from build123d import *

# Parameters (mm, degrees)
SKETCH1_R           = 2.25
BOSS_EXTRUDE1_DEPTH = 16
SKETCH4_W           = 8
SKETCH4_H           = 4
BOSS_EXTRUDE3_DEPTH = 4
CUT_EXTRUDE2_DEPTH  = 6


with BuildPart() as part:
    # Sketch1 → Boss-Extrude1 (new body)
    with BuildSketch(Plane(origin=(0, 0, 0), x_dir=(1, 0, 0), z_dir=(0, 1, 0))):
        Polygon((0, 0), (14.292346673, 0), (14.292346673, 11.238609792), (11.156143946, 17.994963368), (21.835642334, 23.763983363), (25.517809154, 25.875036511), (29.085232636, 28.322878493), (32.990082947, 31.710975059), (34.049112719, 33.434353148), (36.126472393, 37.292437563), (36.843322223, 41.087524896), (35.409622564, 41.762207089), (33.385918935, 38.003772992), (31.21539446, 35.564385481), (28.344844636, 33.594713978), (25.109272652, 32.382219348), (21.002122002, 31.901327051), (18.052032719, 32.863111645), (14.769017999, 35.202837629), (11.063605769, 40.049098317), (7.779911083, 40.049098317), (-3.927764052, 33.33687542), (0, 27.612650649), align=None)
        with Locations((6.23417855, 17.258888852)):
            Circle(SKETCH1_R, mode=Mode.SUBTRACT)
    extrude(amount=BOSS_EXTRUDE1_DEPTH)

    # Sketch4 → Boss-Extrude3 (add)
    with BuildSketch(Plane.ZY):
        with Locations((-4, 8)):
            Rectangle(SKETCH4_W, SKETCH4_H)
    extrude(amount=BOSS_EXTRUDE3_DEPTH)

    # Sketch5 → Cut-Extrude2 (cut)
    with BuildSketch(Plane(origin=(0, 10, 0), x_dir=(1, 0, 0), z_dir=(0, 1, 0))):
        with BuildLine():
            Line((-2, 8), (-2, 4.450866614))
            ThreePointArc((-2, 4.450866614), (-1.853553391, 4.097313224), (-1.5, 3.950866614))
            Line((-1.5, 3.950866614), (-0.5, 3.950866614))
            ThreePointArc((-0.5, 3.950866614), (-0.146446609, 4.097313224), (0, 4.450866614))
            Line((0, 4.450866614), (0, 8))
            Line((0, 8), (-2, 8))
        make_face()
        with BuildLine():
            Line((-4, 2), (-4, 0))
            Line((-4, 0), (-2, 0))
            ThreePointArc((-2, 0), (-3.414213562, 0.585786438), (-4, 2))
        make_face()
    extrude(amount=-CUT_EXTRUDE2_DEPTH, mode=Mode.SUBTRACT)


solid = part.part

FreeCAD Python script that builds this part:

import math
import FreeCAD as App
import Part
import Sketcher


def add_polygon(sketch, points):
    """Adds a closed chain of lines whose ends are joined by coincident constraints."""
    first, n = sketch.GeometryCount, len(points)
    for a, b in zip(points, points[1:] + points[:1]):
        sketch.addGeometry(Part.LineSegment(App.Vector(*a, 0), App.Vector(*b, 0)), False)
    for i in range(n):
        sketch.addConstraint(Sketcher.Constraint("Coincident", first + i, 2, first + (i + 1) % n, 1))

doc = App.newDocument("Part")
body = doc.addObject("PartDesign::Body", "Body")

sketch1 = body.newObject("Sketcher::SketchObject", "Sketch")
sketch1.AttachmentSupport = (doc.getObject("XZ_Plane"), [""])
sketch1.MapMode = "FlatFace"
add_polygon(sketch1, [(0, 0), (14.3, 0), (14.3, -11.2), (11.2, -18), (21.8, -23.8), (25.5, -25.9), (29.1, -28.3), (33, -31.7), (34, -33.4), (36.1, -37.3), (36.8, -41.1), (35.4, -41.8), (33.4, -38), (31.2, -35.6), (28.3, -33.6), (25.1, -32.4), (21, -31.9), (18.1, -32.9), (14.8, -35.2), (11.1, -40), (7.8, -40), (-3.9, -33.3), (0, -27.6)])
sketch1.addGeometry(Part.Circle(App.Vector(6.2, -17.3, 0), App.Vector(0, 0, 1), 2.2), False)
sketch1.addConstraint(Sketcher.Constraint("Horizontal", 0))
sketch1.addConstraint(Sketcher.Constraint("Vertical", 1))
sketch1.addConstraint(Sketcher.Constraint("Horizontal", 19))
sketch1.addConstraint(Sketcher.Constraint("Vertical", 22))
sketch1.addConstraint(Sketcher.Constraint("Coincident", 22, 2, -1, 1))
sketch1.addConstraint(Sketcher.Constraint("Parallel", 8, 11))
sketch1.addConstraint(Sketcher.Constraint("Parallel", 5, 13))
sketch1.addConstraint(Sketcher.Constraint("Parallel", 4, 20))
sketch1.addConstraint(Sketcher.Constraint("Perpendicular", 13, 21))
sketch1.addConstraint(Sketcher.Constraint("Diameter", 23, 4.5))
sketch1.addConstraint(Sketcher.Constraint("DistanceY", 1, 2, 1, 1, 11.23861))
sketch1.addConstraint(Sketcher.Constraint("DistanceY", 22, 1, 22, 2, 27.612651))
sketch1.addConstraint(Sketcher.Constraint("DistanceY", 18, 2, -1, 1, 40.049098))
sketch1.addConstraint(Sketcher.Constraint("DistanceX", 2, 2, 3, 2, 10.679498))
sketch1.addConstraint(Sketcher.Constraint("DistanceY", 8, 2, 4, 2, 11.417401))
sketch1.addConstraint(Sketcher.Constraint("DistanceX", 10, 2, 9, 2, 1.4337))
sketch1.addConstraint(Sketcher.Constraint("Distance", 5, 4.326481))
sketch1.addConstraint(Sketcher.Constraint("Distance", 6, 5.169821))
sketch1.addConstraint(Sketcher.Constraint("Distance", 11, 4.26863))
sketch1.addConstraint(Sketcher.Constraint("Distance", 12, 3.265239))
sketch1.addConstraint(Sketcher.Constraint("Distance", 13, 3.481331))
sketch1.addConstraint(Sketcher.Constraint("Distance", 16, 3.102911))
sketch1.addConstraint(Sketcher.Constraint("Distance", 17, 4.031439))
sketch1.addConstraint(Sketcher.Constraint("Distance", 18, 6.100518))
sketch1.addConstraint(Sketcher.Constraint("DistanceX", 0, 1, 0, 2, 14.292347))
sketch1.addConstraint(Sketcher.Constraint("DistanceX", 19, 2, 19, 1, 3.283695))
sketch1.addConstraint(Sketcher.Constraint("DistanceX", -1, 1, 23, 3, 6.234179))
sketch1.addConstraint(Sketcher.Constraint("DistanceY", 23, 3, -1, 1, 17.258889))
sketch1.addConstraint(Sketcher.Constraint("DistanceX", -1, 1, 4, 2, 25.517809))
sketch1.addConstraint(Sketcher.Constraint("DistanceY", 5, 2, -1, 1, 28.322878))
sketch1.addConstraint(Sketcher.Constraint("DistanceX", -1, 1, 11, 2, 33.385919))
sketch1.addConstraint(Sketcher.Constraint("DistanceY", 14, 2, -1, 1, 32.382219))
sketch1.addConstraint(Sketcher.Constraint("DistanceY", 16, 2, -1, 1, 32.863112))
sketch1.addConstraint(Sketcher.Constraint("DistanceX", -1, 1, 19, 2, 7.779911))
sketch1.addConstraint(Sketcher.Constraint("DistanceY", 3, 2, 2, 2, 5.76902))
sketch1.addConstraint(Sketcher.Constraint("DistanceY", 5, 2, 4, 2, 2.447842))
sketch1.addConstraint(Sketcher.Constraint("DistanceX", 3, 2, 5, 2, 7.24959))
sketch1.addConstraint(Sketcher.Constraint("DistanceX", 5, 2, 6, 2, 3.90485))
sketch1.addConstraint(Sketcher.Constraint("DistanceY", 6, 2, 3, 2, 7.946992))
sketch1.addConstraint(Sketcher.Constraint("DistanceX", 6, 2, 7, 2, 1.05903))
sketch1.addConstraint(Sketcher.Constraint("DistanceY", 7, 2, 6, 2, 1.723378))
sketch1.addConstraint(Sketcher.Constraint("DistanceX", 7, 2, 8, 2, 2.07736))
sketch1.addConstraint(Sketcher.Constraint("DistanceY", 9, 2, 7, 2, 7.653172))
sketch1.addConstraint(Sketcher.Constraint("DistanceY", 10, 2, 8, 2, 4.46977))
sketch1.addConstraint(Sketcher.Constraint("DistanceX", 12, 2, 7, 2, 2.833718))
sketch1.addConstraint(Sketcher.Constraint("DistanceX", 14, 2, 13, 2, 3.235572))
sketch1.addConstraint(Sketcher.Constraint("DistanceX", 15, 2, 14, 2, 4.107151))
sketch1.addConstraint(Sketcher.Constraint("DistanceY", 15, 2, 4, 2, 6.026291))
pad1 = body.newObject("PartDesign::Pad", "Pad")
pad1.Profile = sketch1
pad1.Length = 16
pad1.Reversed = True

sketch2 = body.newObject("Sketcher::SketchObject", "Sketch001")
sketch2.AttachmentSupport = (doc.getObject("YZ_Plane"), [""])
sketch2.MapMode = "FlatFace"
add_polygon(sketch2, [(10, -8), (6, -8), (6, 0), (10, 0)])
sketch2.addConstraint(Sketcher.Constraint("Horizontal", 0))
sketch2.addConstraint(Sketcher.Constraint("Vertical", 1))
sketch2.addConstraint(Sketcher.Constraint("Horizontal", 2))
sketch2.addConstraint(Sketcher.Constraint("Vertical", 3))
sketch2.addConstraint(Sketcher.Constraint("PointOnObject", 1, 2, -1))
sketch2.addConstraint(Sketcher.Constraint("DistanceX", 0, 2, 0, 1, 4.0))
sketch2.addConstraint(Sketcher.Constraint("DistanceY", 1, 1, 1, 2, 8.0))
sketch2.addConstraint(Sketcher.Constraint("DistanceX", -1, 1, 0, 2, 6.0))
pad2 = body.newObject("PartDesign::Pad", "Pad001")
pad2.Profile = sketch2
pad2.Length = 4
pad2.Reversed = True

sketch3 = body.newObject("Sketcher::SketchObject", "Sketch002")
sketch3.AttachmentSupport = (doc.getObject("XZ_Plane"), [""])
sketch3.MapMode = "FlatFace"
sketch3.AttachmentOffset = App.Placement(App.Vector(0, 0, -10), App.Rotation())
sketch3.addGeometry(Part.LineSegment(App.Vector(-2, -8, 0), App.Vector(-2, -4.5, 0)), False)
sketch3.addGeometry(Part.ArcOfCircle(Part.Circle(App.Vector(-1.5, -4.5, 0), App.Vector(0, 0, 1), 0.5), math.radians(90), math.radians(180)), False)
sketch3.addGeometry(Part.LineSegment(App.Vector(-1.5, -4, 0), App.Vector(-0.5, -4, 0)), False)
sketch3.addGeometry(Part.ArcOfCircle(Part.Circle(App.Vector(-0.5, -4.5, 0), App.Vector(0, 0, 1), 0.5), math.radians(0), math.radians(90)), False)
sketch3.addGeometry(Part.LineSegment(App.Vector(0, -4.5, 0), App.Vector(0, -8, 0)), False)
sketch3.addGeometry(Part.LineSegment(App.Vector(0, -8, 0), App.Vector(-2, -8, 0)), False)
sketch3.addGeometry(Part.LineSegment(App.Vector(-4, -2, 0), App.Vector(-4, 0, 0)), False)
sketch3.addGeometry(Part.LineSegment(App.Vector(-4, 0, 0), App.Vector(-2, 0, 0)), False)
sketch3.addGeometry(Part.ArcOfCircle(Part.Circle(App.Vector(-2, -2, 0), App.Vector(0, 0, 1), 2), math.radians(90), math.radians(180)), False)
sketch3.addConstraint(Sketcher.Constraint("Tangent", 0, 2, 1, 2))
sketch3.addConstraint(Sketcher.Constraint("Tangent", 1, 1, 2, 1))
sketch3.addConstraint(Sketcher.Constraint("Tangent", 2, 2, 3, 2))
sketch3.addConstraint(Sketcher.Constraint("Tangent", 3, 1, 4, 1))
sketch3.addConstraint(Sketcher.Constraint("Coincident", 4, 2, 5, 1))
sketch3.addConstraint(Sketcher.Constraint("Coincident", 5, 2, 0, 1))
sketch3.addConstraint(Sketcher.Constraint("Coincident", 6, 2, 7, 1))
sketch3.addConstraint(Sketcher.Constraint("Tangent", 7, 2, 8, 1))
sketch3.addConstraint(Sketcher.Constraint("Tangent", 8, 2, 6, 1))
sketch3.addConstraint(Sketcher.Constraint("Vertical", 0))
sketch3.addConstraint(Sketcher.Constraint("Horizontal", 2))
sketch3.addConstraint(Sketcher.Constraint("Vertical", 4))
sketch3.addConstraint(Sketcher.Constraint("Horizontal", 5))
sketch3.addConstraint(Sketcher.Constraint("Vertical", 6))
sketch3.addConstraint(Sketcher.Constraint("Horizontal", 7))
sketch3.addConstraint(Sketcher.Constraint("Equal", 1, 3))
sketch3.addConstraint(Sketcher.Constraint("PointOnObject", 3, 1, -2))
sketch3.addConstraint(Sketcher.Constraint("PointOnObject", 6, 2, -1))
sketch3.addConstraint(Sketcher.Constraint("Vertical", 8, 3, 0, 2))
sketch3.addConstraint(Sketcher.Constraint("Equal", 5, 7))
sketch3.addConstraint(Sketcher.Constraint("Radius", 8, 2.0))
sketch3.addConstraint(Sketcher.Constraint("Radius", 1, 0.5))
sketch3.addConstraint(Sketcher.Constraint("DistanceY", 4, 2, -1, 1, 8.0))
sketch3.addConstraint(Sketcher.Constraint("DistanceY", 0, 1, 0, 2, 3.549133))
pocket1 = body.newObject("PartDesign::Pocket", "Pocket")
pocket1.Profile = sketch3
pocket1.Length = 6
pocket1.Reversed = True

doc.recompute()
